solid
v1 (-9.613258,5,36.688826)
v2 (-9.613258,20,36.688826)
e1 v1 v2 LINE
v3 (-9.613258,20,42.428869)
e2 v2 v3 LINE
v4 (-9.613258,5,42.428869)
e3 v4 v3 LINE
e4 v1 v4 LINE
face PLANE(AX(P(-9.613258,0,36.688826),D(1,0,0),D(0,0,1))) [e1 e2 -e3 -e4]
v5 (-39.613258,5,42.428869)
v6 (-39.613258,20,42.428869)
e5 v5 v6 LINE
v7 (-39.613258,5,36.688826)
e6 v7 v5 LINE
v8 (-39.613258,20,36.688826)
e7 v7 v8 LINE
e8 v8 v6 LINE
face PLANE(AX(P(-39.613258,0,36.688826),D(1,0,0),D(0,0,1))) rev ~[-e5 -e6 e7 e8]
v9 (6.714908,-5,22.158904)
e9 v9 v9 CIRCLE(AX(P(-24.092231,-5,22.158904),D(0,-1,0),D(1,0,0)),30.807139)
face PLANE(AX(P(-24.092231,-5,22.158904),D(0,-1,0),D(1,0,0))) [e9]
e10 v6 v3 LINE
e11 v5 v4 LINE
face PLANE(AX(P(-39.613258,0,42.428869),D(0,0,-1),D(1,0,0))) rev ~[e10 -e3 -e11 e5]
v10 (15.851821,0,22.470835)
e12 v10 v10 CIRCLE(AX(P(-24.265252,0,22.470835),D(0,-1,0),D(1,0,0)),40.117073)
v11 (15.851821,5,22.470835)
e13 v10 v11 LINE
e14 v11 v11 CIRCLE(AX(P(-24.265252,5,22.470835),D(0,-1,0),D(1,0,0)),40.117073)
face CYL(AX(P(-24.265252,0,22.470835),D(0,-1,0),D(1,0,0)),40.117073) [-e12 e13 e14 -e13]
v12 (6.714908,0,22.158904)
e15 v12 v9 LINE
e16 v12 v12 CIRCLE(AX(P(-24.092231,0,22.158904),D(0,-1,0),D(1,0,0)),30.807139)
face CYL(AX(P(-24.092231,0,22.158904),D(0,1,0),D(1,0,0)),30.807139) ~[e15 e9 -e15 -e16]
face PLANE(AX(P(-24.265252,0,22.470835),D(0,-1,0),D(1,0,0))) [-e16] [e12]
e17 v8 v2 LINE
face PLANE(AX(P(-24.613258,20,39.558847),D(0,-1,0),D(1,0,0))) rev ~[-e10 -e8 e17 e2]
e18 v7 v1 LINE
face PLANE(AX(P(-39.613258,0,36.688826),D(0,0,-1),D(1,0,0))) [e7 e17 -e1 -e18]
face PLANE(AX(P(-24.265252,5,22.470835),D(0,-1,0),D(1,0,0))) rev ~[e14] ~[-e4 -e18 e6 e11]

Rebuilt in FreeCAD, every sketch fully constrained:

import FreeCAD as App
import Part
import Sketcher

V = App.Vector

doc = App.newDocument("Part")
body = doc.addObject("PartDesign::Body", "Body")

sketch1 = body.newObject("Sketcher::SketchObject", "Sketch")
sketch1.AttachmentSupport = (doc.getObject("XZ_Plane"), [""])
sketch1.MapMode = "FlatFace"
sketch1.addGeometry(Part.Circle(V(-24, 22, 0), V(0, 0, 1), 31), False)
sketch1.addConstraint(Sketcher.Constraint("Diameter", 0, 61.614278))
sketch1.addConstraint(Sketcher.Constraint("DistanceX", 0, 3, -1, 1, 24.092231))
sketch1.addConstraint(Sketcher.Constraint("DistanceY", -1, 1, 0, 3, 22.158904))
pad1 = body.newObject("PartDesign::Pad", "Pad")
pad1.Profile = sketch1
pad1.Length = 5

sketch2 = body.newObject("Sketcher::SketchObject", "Sketch001")
sketch2.AttachmentSupport = (doc.getObject("XZ_Plane"), [""])
sketch2.MapMode = "FlatFace"
sketch2.addGeometry(Part.Circle(V(-24, 22, 0), V(0, 0, 1), 40), False)
sketch2.addConstraint(Sketcher.Constraint("Diameter", 0, 80.234146))
sketch2.addConstraint(Sketcher.Constraint("DistanceX", 0, 3, -1, 1, 24.265252))
sketch2.addConstraint(Sketcher.Constraint("DistanceY", -1, 1, 0, 3, 22.470835))
pad2 = body.newObject("PartDesign::Pad", "Pad001")
pad2.Profile = sketch2
pad2.Length = 5
pad2.Reversed = True

sketch3 = body.newObject("Sketcher::SketchObject", "Sketch002")
sketch3.AttachmentSupport = (doc.getObject("XZ_Plane"), [""])
sketch3.MapMode = "FlatFace"
sketch3.addGeometry(Part.LineSegment(V(-40, 42, 0), V(-40, 37, 0)), False)
sketch3.addGeometry(Part.LineSegment(V(-40, 37, 0), V(-10, 37, 0)), False)
sketch3.addGeometry(Part.LineSegment(V(-10, 37, 0), V(-10, 42, 0)), False)
sketch3.addGeometry(Part.LineSegment(V(-10, 42, 0), V(-40, 42, 0)), False)
sketch3.addConstraint(Sketcher.Constraint("Coincident", 0, 2, 1, 1))
sketch3.addConstraint(Sketcher.Constraint("Coincident", 1, 2, 2, 1))
sketch3.addConstraint(Sketcher.Constraint("Coincident", 2, 2, 3, 1))
sketch3.addConstraint(Sketcher.Constraint("Coincident", 3, 2, 0, 1))
sketch3.addConstraint(Sketcher.Constraint("Vertical", 0))
sketch3.addConstraint(Sketcher.Constraint("Horizontal", 1))
sketch3.addConstraint(Sketcher.Constraint("Vertical", 2))
sketch3.addConstraint(Sketcher.Constraint("Horizontal", 3))
sketch3.addConstraint(Sketcher.Constraint("DistanceX", 1, 1, 1, 2, 30.0))
sketch3.addConstraint(Sketcher.Constraint("DistanceY", 0, 2, 0, 1, 5.740043))
sketch3.addConstraint(Sketcher.Constraint("DistanceX", 0, 2, -1, 1, 39.613258))
sketch3.addConstraint(Sketcher.Constraint("DistanceY", -1, 1, 2, 2, 42.428869))
pad3 = body.newObject("PartDesign::Pad", "Pad002")
pad3.Profile = sketch3
pad3.Length = 20
pad3.Reversed = True

doc.recompute()
